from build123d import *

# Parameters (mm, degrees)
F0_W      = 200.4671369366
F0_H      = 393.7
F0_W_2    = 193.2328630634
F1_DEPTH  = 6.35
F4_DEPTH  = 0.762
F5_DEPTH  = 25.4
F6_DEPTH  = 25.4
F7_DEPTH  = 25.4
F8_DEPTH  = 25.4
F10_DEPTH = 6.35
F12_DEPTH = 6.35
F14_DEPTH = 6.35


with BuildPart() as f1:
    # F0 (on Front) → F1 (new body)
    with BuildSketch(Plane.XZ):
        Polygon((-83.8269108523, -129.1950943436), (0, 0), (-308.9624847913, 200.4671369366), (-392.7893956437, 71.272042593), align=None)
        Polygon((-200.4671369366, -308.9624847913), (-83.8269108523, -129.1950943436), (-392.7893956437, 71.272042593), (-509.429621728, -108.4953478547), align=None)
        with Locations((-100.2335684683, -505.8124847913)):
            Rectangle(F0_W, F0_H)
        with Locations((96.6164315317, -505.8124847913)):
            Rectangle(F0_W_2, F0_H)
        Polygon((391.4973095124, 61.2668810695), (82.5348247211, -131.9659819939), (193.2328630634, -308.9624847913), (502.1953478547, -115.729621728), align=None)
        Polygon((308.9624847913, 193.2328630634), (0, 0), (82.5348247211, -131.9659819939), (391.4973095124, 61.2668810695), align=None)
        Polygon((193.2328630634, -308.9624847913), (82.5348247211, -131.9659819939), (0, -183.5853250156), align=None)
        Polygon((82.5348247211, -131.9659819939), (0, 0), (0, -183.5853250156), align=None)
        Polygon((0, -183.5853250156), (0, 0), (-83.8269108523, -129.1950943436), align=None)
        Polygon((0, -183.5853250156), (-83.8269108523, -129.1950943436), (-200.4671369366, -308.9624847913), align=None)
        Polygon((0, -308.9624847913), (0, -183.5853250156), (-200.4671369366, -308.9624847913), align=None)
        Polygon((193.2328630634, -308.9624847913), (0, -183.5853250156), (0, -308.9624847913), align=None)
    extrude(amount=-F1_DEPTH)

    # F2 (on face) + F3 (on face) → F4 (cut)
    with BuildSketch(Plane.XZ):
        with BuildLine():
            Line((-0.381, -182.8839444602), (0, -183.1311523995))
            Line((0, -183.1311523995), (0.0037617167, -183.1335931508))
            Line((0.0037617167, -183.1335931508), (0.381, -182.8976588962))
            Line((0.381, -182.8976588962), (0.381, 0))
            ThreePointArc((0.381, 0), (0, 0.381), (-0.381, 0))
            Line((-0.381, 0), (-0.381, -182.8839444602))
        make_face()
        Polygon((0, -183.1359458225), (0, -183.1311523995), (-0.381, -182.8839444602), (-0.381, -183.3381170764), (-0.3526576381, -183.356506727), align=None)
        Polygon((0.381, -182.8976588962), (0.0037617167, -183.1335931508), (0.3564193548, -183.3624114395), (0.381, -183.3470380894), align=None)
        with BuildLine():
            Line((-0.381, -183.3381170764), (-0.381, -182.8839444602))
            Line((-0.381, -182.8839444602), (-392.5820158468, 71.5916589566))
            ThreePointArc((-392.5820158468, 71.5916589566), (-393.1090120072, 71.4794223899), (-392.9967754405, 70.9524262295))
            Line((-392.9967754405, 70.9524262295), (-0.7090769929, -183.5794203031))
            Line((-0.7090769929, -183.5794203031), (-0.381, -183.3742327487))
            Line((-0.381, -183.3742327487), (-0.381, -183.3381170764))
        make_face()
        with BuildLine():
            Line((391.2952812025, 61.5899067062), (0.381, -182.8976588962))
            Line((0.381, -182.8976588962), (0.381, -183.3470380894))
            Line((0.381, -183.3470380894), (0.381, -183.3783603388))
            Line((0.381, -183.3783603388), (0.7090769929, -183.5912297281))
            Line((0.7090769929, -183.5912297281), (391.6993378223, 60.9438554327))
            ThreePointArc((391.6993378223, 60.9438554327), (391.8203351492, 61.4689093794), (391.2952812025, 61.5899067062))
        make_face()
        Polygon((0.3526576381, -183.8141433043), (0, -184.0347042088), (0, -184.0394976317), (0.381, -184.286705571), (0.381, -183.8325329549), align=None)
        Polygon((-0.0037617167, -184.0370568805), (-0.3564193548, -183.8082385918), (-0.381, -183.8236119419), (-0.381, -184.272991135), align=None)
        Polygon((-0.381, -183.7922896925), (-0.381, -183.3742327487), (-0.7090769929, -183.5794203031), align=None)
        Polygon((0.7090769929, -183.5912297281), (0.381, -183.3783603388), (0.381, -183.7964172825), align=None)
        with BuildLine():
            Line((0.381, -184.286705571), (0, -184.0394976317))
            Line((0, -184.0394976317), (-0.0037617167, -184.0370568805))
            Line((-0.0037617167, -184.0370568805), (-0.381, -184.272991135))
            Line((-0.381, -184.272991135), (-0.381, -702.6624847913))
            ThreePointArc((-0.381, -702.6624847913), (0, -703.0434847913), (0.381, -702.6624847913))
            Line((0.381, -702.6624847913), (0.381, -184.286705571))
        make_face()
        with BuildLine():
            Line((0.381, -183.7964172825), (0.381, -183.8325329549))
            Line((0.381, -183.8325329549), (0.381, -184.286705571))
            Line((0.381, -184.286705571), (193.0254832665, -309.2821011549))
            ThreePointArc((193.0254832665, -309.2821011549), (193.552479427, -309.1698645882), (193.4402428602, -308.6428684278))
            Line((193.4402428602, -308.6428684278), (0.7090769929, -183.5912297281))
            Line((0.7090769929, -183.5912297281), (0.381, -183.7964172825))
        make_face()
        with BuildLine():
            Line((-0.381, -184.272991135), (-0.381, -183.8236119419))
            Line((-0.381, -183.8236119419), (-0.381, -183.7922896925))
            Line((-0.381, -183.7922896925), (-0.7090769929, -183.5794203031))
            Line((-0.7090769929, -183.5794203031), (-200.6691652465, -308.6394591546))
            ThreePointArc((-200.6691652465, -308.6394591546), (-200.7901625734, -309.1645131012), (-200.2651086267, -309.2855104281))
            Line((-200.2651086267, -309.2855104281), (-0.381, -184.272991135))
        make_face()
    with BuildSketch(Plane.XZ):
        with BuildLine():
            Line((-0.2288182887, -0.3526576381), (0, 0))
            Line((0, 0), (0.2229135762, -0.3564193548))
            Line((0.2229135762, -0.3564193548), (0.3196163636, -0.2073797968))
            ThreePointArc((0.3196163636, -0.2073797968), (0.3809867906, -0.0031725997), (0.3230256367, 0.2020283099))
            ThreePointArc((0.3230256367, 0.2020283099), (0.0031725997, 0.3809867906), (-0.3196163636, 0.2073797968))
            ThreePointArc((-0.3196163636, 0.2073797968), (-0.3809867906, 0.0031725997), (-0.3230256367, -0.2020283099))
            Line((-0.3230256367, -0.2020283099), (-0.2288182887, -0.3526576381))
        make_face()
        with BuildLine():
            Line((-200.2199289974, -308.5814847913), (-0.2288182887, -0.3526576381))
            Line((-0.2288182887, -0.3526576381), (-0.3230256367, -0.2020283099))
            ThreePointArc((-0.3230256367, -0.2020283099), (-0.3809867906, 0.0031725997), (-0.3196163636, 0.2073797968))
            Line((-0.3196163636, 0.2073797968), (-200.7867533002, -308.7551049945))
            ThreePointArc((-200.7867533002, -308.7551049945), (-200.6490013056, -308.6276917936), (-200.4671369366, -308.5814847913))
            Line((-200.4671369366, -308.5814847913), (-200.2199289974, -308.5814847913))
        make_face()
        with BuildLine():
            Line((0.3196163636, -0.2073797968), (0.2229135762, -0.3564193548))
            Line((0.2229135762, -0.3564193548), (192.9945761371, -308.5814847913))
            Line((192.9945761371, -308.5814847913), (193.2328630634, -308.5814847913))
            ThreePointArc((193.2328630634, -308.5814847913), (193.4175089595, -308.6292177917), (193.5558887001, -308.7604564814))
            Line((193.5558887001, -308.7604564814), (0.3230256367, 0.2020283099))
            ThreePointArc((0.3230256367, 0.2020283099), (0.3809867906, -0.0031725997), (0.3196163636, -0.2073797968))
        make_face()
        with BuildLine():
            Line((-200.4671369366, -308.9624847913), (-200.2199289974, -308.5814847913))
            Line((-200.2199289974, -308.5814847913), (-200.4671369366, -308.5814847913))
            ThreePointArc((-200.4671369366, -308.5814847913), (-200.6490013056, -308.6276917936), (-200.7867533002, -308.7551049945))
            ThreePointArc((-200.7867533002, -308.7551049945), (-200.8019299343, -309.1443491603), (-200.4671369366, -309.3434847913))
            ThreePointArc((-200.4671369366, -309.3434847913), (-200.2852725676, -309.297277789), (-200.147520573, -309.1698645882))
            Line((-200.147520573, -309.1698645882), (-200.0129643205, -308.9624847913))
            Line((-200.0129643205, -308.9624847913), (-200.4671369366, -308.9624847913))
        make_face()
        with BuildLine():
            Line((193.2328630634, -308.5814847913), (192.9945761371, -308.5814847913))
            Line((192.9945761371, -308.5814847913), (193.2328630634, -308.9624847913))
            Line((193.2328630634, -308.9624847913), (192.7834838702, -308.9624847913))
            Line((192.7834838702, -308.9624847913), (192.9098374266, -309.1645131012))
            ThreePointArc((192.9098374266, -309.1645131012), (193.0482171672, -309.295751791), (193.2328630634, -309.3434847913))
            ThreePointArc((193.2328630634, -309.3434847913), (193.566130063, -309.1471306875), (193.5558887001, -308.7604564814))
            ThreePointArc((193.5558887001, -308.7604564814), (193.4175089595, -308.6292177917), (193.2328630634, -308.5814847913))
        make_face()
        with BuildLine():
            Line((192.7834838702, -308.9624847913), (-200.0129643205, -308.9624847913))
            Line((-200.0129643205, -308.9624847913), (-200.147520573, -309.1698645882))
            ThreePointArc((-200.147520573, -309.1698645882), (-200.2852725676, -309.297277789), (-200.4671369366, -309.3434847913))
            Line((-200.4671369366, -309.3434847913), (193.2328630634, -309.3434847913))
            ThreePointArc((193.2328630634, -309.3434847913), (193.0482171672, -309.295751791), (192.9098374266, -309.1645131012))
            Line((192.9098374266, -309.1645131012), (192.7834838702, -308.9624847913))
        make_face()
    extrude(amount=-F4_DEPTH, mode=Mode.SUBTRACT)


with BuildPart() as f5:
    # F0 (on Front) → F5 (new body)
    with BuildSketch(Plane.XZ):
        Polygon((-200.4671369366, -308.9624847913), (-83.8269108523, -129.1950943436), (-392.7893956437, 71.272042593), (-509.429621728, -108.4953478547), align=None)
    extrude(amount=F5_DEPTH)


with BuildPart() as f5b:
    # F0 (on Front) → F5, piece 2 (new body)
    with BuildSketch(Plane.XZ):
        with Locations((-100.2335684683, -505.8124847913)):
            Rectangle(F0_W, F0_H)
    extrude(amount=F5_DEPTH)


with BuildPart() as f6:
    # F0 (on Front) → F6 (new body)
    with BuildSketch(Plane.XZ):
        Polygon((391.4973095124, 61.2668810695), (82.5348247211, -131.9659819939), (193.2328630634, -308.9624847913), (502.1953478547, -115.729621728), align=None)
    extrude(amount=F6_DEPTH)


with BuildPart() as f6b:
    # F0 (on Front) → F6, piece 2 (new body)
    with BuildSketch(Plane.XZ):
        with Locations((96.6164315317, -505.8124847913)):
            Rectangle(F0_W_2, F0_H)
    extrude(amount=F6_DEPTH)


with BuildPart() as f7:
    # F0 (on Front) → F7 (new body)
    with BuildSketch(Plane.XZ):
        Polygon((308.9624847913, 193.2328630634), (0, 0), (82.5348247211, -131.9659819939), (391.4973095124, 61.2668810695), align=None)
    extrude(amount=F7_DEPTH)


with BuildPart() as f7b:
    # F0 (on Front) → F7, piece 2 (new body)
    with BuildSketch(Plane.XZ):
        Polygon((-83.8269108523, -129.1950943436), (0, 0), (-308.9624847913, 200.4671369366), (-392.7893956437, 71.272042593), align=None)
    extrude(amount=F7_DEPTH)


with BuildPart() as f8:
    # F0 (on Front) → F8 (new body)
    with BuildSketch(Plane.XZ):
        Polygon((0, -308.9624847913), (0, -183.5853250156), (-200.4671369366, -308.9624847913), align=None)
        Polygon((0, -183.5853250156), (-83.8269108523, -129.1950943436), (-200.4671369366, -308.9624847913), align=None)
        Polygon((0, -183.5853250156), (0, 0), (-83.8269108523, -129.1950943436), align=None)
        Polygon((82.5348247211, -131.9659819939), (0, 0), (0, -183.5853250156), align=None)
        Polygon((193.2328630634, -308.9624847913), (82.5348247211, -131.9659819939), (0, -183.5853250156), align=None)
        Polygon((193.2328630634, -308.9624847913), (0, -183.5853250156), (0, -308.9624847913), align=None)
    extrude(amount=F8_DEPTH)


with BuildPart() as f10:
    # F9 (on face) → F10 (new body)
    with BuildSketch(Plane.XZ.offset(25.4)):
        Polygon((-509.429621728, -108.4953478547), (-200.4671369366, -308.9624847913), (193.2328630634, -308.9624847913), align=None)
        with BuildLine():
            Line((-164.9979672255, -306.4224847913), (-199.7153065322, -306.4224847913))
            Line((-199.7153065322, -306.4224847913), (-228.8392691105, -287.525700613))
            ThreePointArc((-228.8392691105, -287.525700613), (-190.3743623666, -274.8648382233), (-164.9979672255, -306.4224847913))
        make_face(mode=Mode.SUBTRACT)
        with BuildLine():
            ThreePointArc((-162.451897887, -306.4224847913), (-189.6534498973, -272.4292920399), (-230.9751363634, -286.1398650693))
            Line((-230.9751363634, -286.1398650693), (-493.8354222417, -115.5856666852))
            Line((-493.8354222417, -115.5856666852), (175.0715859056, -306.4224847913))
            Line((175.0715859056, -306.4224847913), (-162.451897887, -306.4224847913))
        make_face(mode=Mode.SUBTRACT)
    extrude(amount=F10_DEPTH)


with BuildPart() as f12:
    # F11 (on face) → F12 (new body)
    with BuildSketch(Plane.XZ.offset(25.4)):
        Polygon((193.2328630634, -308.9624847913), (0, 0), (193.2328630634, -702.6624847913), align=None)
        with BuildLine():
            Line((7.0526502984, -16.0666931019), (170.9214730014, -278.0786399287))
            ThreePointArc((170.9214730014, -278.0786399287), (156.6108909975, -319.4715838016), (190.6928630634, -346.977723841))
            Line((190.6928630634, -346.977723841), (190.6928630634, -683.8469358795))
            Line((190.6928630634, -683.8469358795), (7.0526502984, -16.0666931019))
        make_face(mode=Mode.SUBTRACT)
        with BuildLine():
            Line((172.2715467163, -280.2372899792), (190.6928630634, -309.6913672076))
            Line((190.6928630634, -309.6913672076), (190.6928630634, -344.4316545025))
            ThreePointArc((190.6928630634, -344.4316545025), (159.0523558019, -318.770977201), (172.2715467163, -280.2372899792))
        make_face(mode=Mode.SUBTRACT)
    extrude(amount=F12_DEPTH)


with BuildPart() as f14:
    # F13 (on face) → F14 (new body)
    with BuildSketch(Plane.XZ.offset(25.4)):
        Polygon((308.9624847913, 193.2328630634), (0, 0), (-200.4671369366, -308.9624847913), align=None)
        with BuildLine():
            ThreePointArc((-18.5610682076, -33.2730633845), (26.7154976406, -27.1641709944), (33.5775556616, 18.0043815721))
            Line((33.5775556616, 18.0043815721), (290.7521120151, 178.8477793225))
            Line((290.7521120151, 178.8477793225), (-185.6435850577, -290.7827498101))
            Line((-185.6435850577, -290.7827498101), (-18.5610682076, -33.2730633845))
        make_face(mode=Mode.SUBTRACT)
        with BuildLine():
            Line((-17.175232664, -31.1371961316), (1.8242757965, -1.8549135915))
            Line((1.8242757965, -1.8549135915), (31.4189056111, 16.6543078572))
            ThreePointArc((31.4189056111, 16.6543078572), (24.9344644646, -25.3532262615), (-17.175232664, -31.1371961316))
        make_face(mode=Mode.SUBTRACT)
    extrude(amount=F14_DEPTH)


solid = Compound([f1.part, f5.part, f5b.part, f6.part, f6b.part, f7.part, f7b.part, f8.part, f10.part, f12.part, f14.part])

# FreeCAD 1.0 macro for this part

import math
import FreeCAD as App
import Part
import Sketcher
from FreeCAD import Vector
Q = App.Units.Quantity


def add_polygon(sketch, points):
    """Adds a closed chain of lines whose ends are joined by coincident constraints."""
    first, n = sketch.GeometryCount, len(points)
    for a, b in zip(points, points[1:] + points[:1]):
        sketch.addGeometry(Part.LineSegment(App.Vector(*a, 0), App.Vector(*b, 0)), False)
    for i in range(n):
        sketch.addConstraint(Sketcher.Constraint("Coincident", first + i, 2, first + (i + 1) % n, 1))

doc = App.newDocument("Part")
params = doc.addObject("Spreadsheet::Sheet", "Params")
for row, (alias, value) in enumerate([
    ("sketch1_width", "15.5 in"),
    ("sketch1_length", "14.5 in"),
    ("pad1_length", "0.25 in"),
    ("sketch2_radius", "0.015 in"),
    ("sketch2_radius2", "0.015 in"),
    ("sketch2_radius3", "0.015 in"),
    ("sketch2_radius4", "0.015 in"),
    ("sketch2_radius5", "0.015 in"),
    ("pocket1_length", "0.03 in"),
    ("sketch3_length", "14.5 in"),
    ("pad2_length", "1 in"),
    ("sketch4_height", "15.5 in"),
    ("pad3_length", "1 in"),
    ("pad4_length", "1 in"),
    ("sketch6_height", "15.5 in"),
    ("pad5_length", "1 in"),
    ("pad6_length", "1 in"),
    ("sketch8_length", "14.5 in"),
    ("pad7_length", "1 in"),
    ("sketch9_width", "15.5 in"),
    ("sketch9_length", "14.5 in"),
    ("pad8_length", "1 in"),
    ("sketch10_radius", "1.4 in"),
    ("sketch10_radius2", "1.5 in"),
    ("sketch10_width", "15.5 in"),
    ("sketch10_length", "14.5 in"),
    ("sketch10_height", "0.1 in"),
    ("pad9_length", "0.25 in"),
    ("sketch11_radius", "1.5 in"),
    ("sketch11_radius2", "1.4 in"),
    ("sketch11_height", "15.5 in"),
    ("sketch11_width", "0.1 in"),
    ("pad10_length", "0.25 in"),
    ("sketch12_radius", "1.4 in"),
    ("sketch12_radius2", "1.5 in"),
    ("sketch12_length", "14.5 in"),
    ("pad11_length", "0.25 in"),
], start=1):
    params.set(f"A{row}", alias)
    params.set(f"B{row}", "=" + value)
    params.setAlias(f"B{row}", alias)

body = doc.addObject("PartDesign::Body", "Body")

# Sketch on XZ plane
sketch1 = body.newObject("Sketcher::SketchObject", "Sketch")
sketch1.AttachmentSupport = (doc.getObject("XZ_Plane"), [""])
sketch1.MapMode = "FlatFace"
add_polygon(sketch1, [(193, -703), (193, -309), (502, -116), (309, 193), (0, 0), (-309, 200), (-509, -108), (-200, -309), (-200, -703)])  # lines 0-8
sketch1.addConstraint(Sketcher.Constraint("Vertical", 0))
sketch1.addConstraint(Sketcher.Constraint("Vertical", 7))
sketch1.addConstraint(Sketcher.Constraint("Horizontal", 8))
sketch1.addConstraint(Sketcher.Constraint("Coincident", 3, 2, -1, 1))
sketch1.addConstraint(Sketcher.Constraint("Perpendicular", 1, 2))
sketch1.addConstraint(Sketcher.Constraint("Perpendicular", 2, 3))
sketch1.addConstraint(Sketcher.Constraint("Perpendicular", 4, 5))
sketch1.addConstraint(Sketcher.Constraint("Perpendicular", 5, 6))
sketch1.addConstraint(Sketcher.Constraint("Horizontal", 0, 2, 6, 2))
sketch1.addConstraint(Sketcher.Constraint("Equal", 8, 0))
sketch1.addConstraint(Sketcher.Constraint("Equal", 1, 2))
sketch1.addConstraint(Sketcher.Constraint("Equal", 2, 3))
sketch1.addConstraint(Sketcher.Constraint("Equal", 4, 5))
sketch1.addConstraint(Sketcher.Constraint("Equal", 5, 6))
sketch1.addConstraint(Sketcher.Constraint("DistanceX", 8, 1, 8, 2, Q("15.5 in")))
sketch1.addConstraint(Sketcher.Constraint("Distance", 4, Q("14.5 in")))
sketch1.addConstraint(Sketcher.Constraint("DistanceY", 1, 2, -1, 1, 115.729622))
sketch1.setExpression("Constraints[23]", "Params.sketch1_width")
sketch1.setExpression("Constraints[24]", "Params.sketch1_length")
pad1 = body.newObject("PartDesign::Pad", "Pad")
pad1.Profile = sketch1
pad1.setExpression("Length", "Params.pad1_length")
pad1.Reversed = True

# Sketch on XZ plane
sketch2 = body.newObject("Sketcher::SketchObject", "Sketch001")
sketch2.AttachmentSupport = (doc.getObject("XZ_Plane"), [""])
sketch2.MapMode = "FlatFace"
sketch2.addGeometry(Part.ArcOfCircle(Part.Circle(Vector(-200.467137, -308.962485, 0), Vector(0, 0, 1), 0.381), math.radians(147.022891), math.radians(270)), False)  # 0
sketch2.addGeometry(Part.LineSegment(Vector(-200.467137, -309.343485, 0), Vector(-0.381, -309.343485, 0)), False)  # 1
sketch2.addGeometry(Part.LineSegment(Vector(-0.381, -309.343485, 0), Vector(-0.381, -702.662485, 0)), False)  # 2
sketch2.addGeometry(Part.ArcOfCircle(Part.Circle(Vector(0, -702.662485, 0), Vector(0, 0, 1), 0.381), math.radians(180), math.radians(360)), False)  # 3
sketch2.addGeometry(Part.LineSegment(Vector(0.381, -702.662485, 0), Vector(0.381, -309.343485, 0)), False)  # 4
sketch2.addGeometry(Part.LineSegment(Vector(0.381, -309.343485, 0), Vector(193.232863, -309.343485, 0)), False)  # 5
sketch2.addGeometry(Part.ArcOfCircle(Part.Circle(Vector(193.232863, -308.962485, 0), Vector(0, 0, 1), 0.381), math.radians(-90), math.radians(32.022891)), False)  # 6
sketch2.addGeometry(Part.LineSegment(Vector(193.555889, -308.760456, 0), Vector(83.059879, -132.086979, 0)), False)  # 7
sketch2.addGeometry(Part.LineSegment(Vector(83.059879, -132.086979, 0), Vector(391.699338, 60.943855, 0)), False)  # 8
sketch2.addGeometry(Part.ArcOfCircle(Part.Circle(Vector(391.49731, 61.266881, 0), Vector(0, 0, 1), 0.381), math.radians(-57.977109), math.radians(122.02289)), False)  # 9
sketch2.addGeometry(Part.LineSegment(Vector(391.295281, 61.589907, 0), Vector(82.655822, -131.440928, 0)), False)  # 10
sketch2.addGeometry(Part.LineSegment(Vector(82.655822, -131.440928, 0), Vector(0.323026, 0.202028, 0)), False)  # 11
sketch2.addGeometry(Part.ArcOfCircle(Part.Circle(Vector(0, 0, 0), Vector(0, 0, 1), 0.381), math.radians(32.022891), math.radians(147.022891)), False)  # 12
sketch2.addGeometry(Part.LineSegment(Vector(-0.319616, 0.20738, 0), Vector(-83.939147, -128.668098, 0)), False)  # 13
sketch2.addGeometry(Part.LineSegment(Vector(-83.939147, -128.668098, 0), Vector(-392.582016, 71.591659, 0)), False)  # 14
sketch2.addGeometry(Part.ArcOfCircle(Part.Circle(Vector(-392.789396, 71.272043, 0), Vector(0, 0, 1), 0.381), math.radians(57.022891), math.radians(237.022891)), False)  # 15
sketch2.addGeometry(Part.LineSegment(Vector(-392.996775, 70.952426, 0), Vector(-84.353907, -129.307331, 0)), False)  # 16
sketch2.addGeometry(Part.LineSegment(Vector(-84.353907, -129.307331, 0), Vector(-200.786753, -308.755105, 0)), False)  # 17
add_polygon(sketch2, [(-199.748619, -308.962485), (-0.381, -184.272991), (-0.381, -308.962485)])  # lines 18-20
add_polygon(sketch2, [(-0.709077, -183.57942), (-199.976435, -308.206208), (-84.034291, -129.514711)])  # lines 21-23
add_polygon(sketch2, [(-0.381, -182.883944), (-83.619531, -128.875478), (-0.381, -0.587202)])  # lines 24-26
add_polygon(sketch2, [(0.381, -182.897659), (0.381, -0.609186), (82.332796, -131.642956)])  # lines 27-29
add_polygon(sketch2, [(0.709077, -183.59123), (82.736853, -132.289008), (192.754823, -308.198141)])  # lines 30-32
add_polygon(sketch2, [(0.381, -184.286706), (192.532886, -308.962485), (0.381, -308.962485)])  # lines 33-35
add_polygon(sketch2, [(0, -183.131152), (0.003762, -183.133593), (0.356419, -183.362411), (0.381, -183.347038), (0.381, -183.832533), (0.352658, -183.814143), (0, -184.034704), (0, -184.039498), (-0.003762, -184.037057), (-0.356419, -183.808239), (-0.381, -183.823612), (-0.381, -183.338117), (-0.352658, -183.356507), (0, -183.135946)])  # lines 36-49
sketch2.addConstraint(Sketcher.Constraint("Coincident", 0, 2, 1, 1))
sketch2.addConstraint(Sketcher.Constraint("Coincident", 1, 2, 2, 1))
sketch2.addConstraint(Sketcher.Constraint("Coincident", 2, 2, 3, 1))
sketch2.addConstraint(Sketcher.Constraint("Coincident", 3, 2, 4, 1))
sketch2.addConstraint(Sketcher.Constraint("Coincident", 4, 2, 5, 1))
sketch2.addConstraint(Sketcher.Constraint("Coincident", 5, 2, 6, 1))
sketch2.addConstraint(Sketcher.Constraint("Coincident", 6, 2, 7, 1))
sketch2.addConstraint(Sketcher.Constraint("Coincident", 7, 2, 8, 1))
sketch2.addConstraint(Sketcher.Constraint("Coincident", 8, 2, 9, 1))
sketch2.addConstraint(Sketcher.Constraint("Coincident", 9, 2, 10, 1))
sketch2.addConstraint(Sketcher.Constraint("Coincident", 10, 2, 11, 1))
sketch2.addConstraint(Sketcher.Constraint("Coincident", 11, 2, 12, 1))
sketch2.addConstraint(Sketcher.Constraint("Coincident", 12, 2, 13, 1))
sketch2.addConstraint(Sketcher.Constraint("Coincident", 13, 2, 14, 1))
sketch2.addConstraint(Sketcher.Constraint("Coincident", 14, 2, 15, 1))
sketch2.addConstraint(Sketcher.Constraint("Coincident", 15, 2, 16, 1))
sketch2.addConstraint(Sketcher.Constraint("Coincident", 16, 2, 17, 1))
sketch2.addConstraint(Sketcher.Constraint("Coincident", 17, 2, 0, 1))
sketch2.addConstraint(Sketcher.Constraint("Horizontal", 1))
sketch2.addConstraint(Sketcher.Constraint("Vertical", 2))
sketch2.addConstraint(Sketcher.Constraint("Vertical", 4))
sketch2.addConstraint(Sketcher.Constraint("Horizontal", 5))
sketch2.addConstraint(Sketcher.Constraint("Vertical", 19))
sketch2.addConstraint(Sketcher.Constraint("Horizontal", 20))
sketch2.addConstraint(Sketcher.Constraint("Vertical", 26))
sketch2.addConstraint(Sketcher.Constraint("Vertical", 27))
sketch2.addConstraint(Sketcher.Constraint("Horizontal", 34))
sketch2.addConstraint(Sketcher.Constraint("Vertical", 35))
sketch2.addConstraint(Sketcher.Constraint("Vertical", 39))
sketch2.addConstraint(Sketcher.Constraint("Vertical", 42))
sketch2.addConstraint(Sketcher.Constraint("Vertical", 46))
sketch2.addConstraint(Sketcher.Constraint("Vertical", 49))
sketch2.addConstraint(Sketcher.Constraint("Coincident", 12, 3, -1, 1))
sketch2.addConstraint(Sketcher.Constraint("PointOnObject", 3, 3, -2))
sketch2.addConstraint(Sketcher.Constraint("PointOnObject", 41, 2, -2))
sketch2.addConstraint(Sketcher.Constraint("PointOnObject", 48, 2, -2))
sketch2.addConstraint(Sketcher.Constraint("Radius", 0, Q("0.015 in")))
sketch2.addConstraint(Sketcher.Constraint("Radius", 3, Q("0.015 in")))
sketch2.addConstraint(Sketcher.Constraint("Radius", 6, Q("0.015 in")))
sketch2.addConstraint(Sketcher.Constraint("Radius", 9, Q("0.015 in")))
sketch2.addConstraint(Sketcher.Constraint("Radius", 12, Q("0.015 in")))
sketch2.addConstraint(Sketcher.Constraint("Radius", 15, Q("0.015 in")))
sketch2.addConstraint(Sketcher.Constraint("DistanceY", 3, 3, 0, 3, Q("15.5 in")))
sketch2.addConstraint(Sketcher.Constraint("DistanceX", 0, 3, 6, 3, Q("15.5 in")))
sketch2.addConstraint(Sketcher.Constraint("DistanceY", 3, 3, 6, 3, Q("15.5 in")))
sketch2.addConstraint(Sketcher.Constraint("DistanceX", 0, 2, 6, 3, Q("15.5 in")))
sketch2.addConstraint(Sketcher.Constraint("DistanceY", 2, 2, 6, 3, Q("15.5 in")))
sketch2.addConstraint(Sketcher.Constraint("DistanceY", 3, 2, 6, 3, Q("15.5 in")))
sketch2.addConstraint(Sketcher.Constraint("DistanceX", 0, 2, 5, 2, Q("15.5 in")))
sketch2.addConstraint(Sketcher.Constraint("DistanceX", 19, 2, 4, 2, Q("0.03 in")))
sketch2.addConstraint(Sketcher.Constraint("DistanceX", 25, 2, 27, 2, Q("0.03 in")))
sketch2.addConstraint(Sketcher.Constraint("DistanceX", 18, 2, 29, 2, Q("0.03 in")))
sketch2.addConstraint(Sketcher.Constraint("DistanceX", 19, 2, 34, 2, Q("0.03 in")))
sketch2.addConstraint(Sketcher.Constraint("DistanceX", 26, 2, 38, 2, Q("0.03 in")))
sketch2.addConstraint(Sketcher.Constraint("Distance", 14, Q("14.485 in")))
sketch2.addConstraint(Sketcher.Constraint("Distance", 16, Q("14.485 in")))
sketch2.addConstraint(Sketcher.Constraint("DistanceX", 45, 2, -1, 1, Q("0.015 in")))
sketch2.addConstraint(Sketcher.Constraint("DistanceY", 10, 2, 16, 2, Q("0.0839999 in")))
sketch2.addConstraint(Sketcher.Constraint("DistanceY", 1, 2, 19, 2, Q("0.015 in")))
sketch2.addConstraint(Sketcher.Constraint("DistanceY", 5, 2, 33, 2, Q("0.015 in")))
sketch2.addConstraint(Sketcher.Constraint("DistanceY", 39, 2, 32, 2, Q("0.0095001 in")))
sketch2.addConstraint(Sketcher.Constraint("DistanceY", 23, 2, 46, 2, Q("0.0095001 in")))
sketch2.addConstraint(Sketcher.Constraint("DistanceX", 20, 2, 20, 1, 199.367619))
sketch2.addConstraint(Sketcher.Constraint("DistanceY", 35, 1, 35, 2, 124.675779))
sketch2.addConstraint(Sketcher.Constraint("DistanceY", 13, 2, -1, 1, 128.668098))
sketch2.addConstraint(Sketcher.Constraint("DistanceX", 14, 2, 12, 2, 392.262399))
sketch2.addConstraint(Sketcher.Constraint("DistanceX", 23, 2, 10, 2, 83.364899))
sketch2.addConstraint(Sketcher.Constraint("DistanceY", 35, 2, 41, 2, 0.252001))
sketch2.addConstraint(Sketcher.Constraint("Distance", 32, 228.928921))
sketch2.addConstraint(Sketcher.Constraint("Distance", 41, 0.41595))
sketch2.addConstraint(Sketcher.Constraint("Distance", 48, 0.41595))
sketch2.addConstraint(Sketcher.Constraint("DistanceX", 1, 1, 1, 2, 200.086137))
sketch2.addConstraint(Sketcher.Constraint("DistanceX", 34, 2, 34, 1, 192.151886))
sketch2.addConstraint(Sketcher.Constraint("DistanceY", 19, 2, 19, 1, 124.689494))
sketch2.addConstraint(Sketcher.Constraint("DistanceY", 26, 2, 26, 1, 182.296742))
sketch2.addConstraint(Sketcher.Constraint("DistanceY", 27, 1, 27, 2, 182.288473))
sketch2.addConstraint(Sketcher.Constraint("DistanceY", 39, 2, 39, 1, 0.485495))
sketch2.addConstraint(Sketcher.Constraint("DistanceY", 42, 2, 42, 1, 0.004793))
sketch2.addConstraint(Sketcher.Constraint("DistanceY", 46, 1, 46, 2, 0.485495))
sketch2.addConstraint(Sketcher.Constraint("DistanceY", 49, 1, 49, 2, 0.004793))
sketch2.addConstraint(Sketcher.Constraint("DistanceX", -1, 1, 9, 3, 391.49731))
sketch2.addConstraint(Sketcher.Constraint("DistanceY", -1, 1, 9, 3, 61.266881))
sketch2.addConstraint(Sketcher.Constraint("DistanceX", -1, 1, 6, 2, 193.555889))
sketch2.addConstraint(Sketcher.Constraint("DistanceX", -1, 1, 7, 2, 83.059879))
sketch2.addConstraint(Sketcher.Constraint("DistanceY", 7, 2, -1, 1, 132.086979))
sketch2.addConstraint(Sketcher.Constraint("DistanceX", -1, 1, 9, 2, 391.295281))
sketch2.addConstraint(Sketcher.Constraint("DistanceY", 10, 2, -1, 1, 131.440928))
sketch2.addConstraint(Sketcher.Constraint("DistanceY", -1, 1, 11, 2, 0.202028))
sketch2.addConstraint(Sketcher.Constraint("DistanceY", -1, 1, 12, 2, 0.20738))
sketch2.addConstraint(Sketcher.Constraint("DistanceY", -1, 1, 14, 2, 71.591659))
sketch2.addConstraint(Sketcher.Constraint("DistanceY", 18, 2, -1, 1, 184.272991))
sketch2.addConstraint(Sketcher.Constraint("DistanceY", 21, 2, -1, 1, 308.206208))
sketch2.addConstraint(Sketcher.Constraint("DistanceX", 22, 2, -1, 1, 84.034291))
sketch2.addConstraint(Sketcher.Constraint("DistanceY", 22, 2, -1, 1, 129.514711))
sketch2.addConstraint(Sketcher.Constraint("DistanceY", 23, 2, -1, 1, 183.57942))
sketch2.addConstraint(Sketcher.Constraint("DistanceX", 24, 2, -1, 1, 83.619531))
sketch2.addConstraint(Sketcher.Constraint("DistanceY", 29, 2, -1, 1, 182.897659))
sketch2.addConstraint(Sketcher.Constraint("DistanceY", 31, 2, -1, 1, 308.198141))
sketch2.addConstraint(Sketcher.Constraint("DistanceY", 32, 2, -1, 1, 183.59123))
sketch2.addConstraint(Sketcher.Constraint("DistanceX", -1, 1, 36, 2, 0.003762))
sketch2.addConstraint(Sketcher.Constraint("DistanceX", -1, 1, 37, 2, 0.356419))
sketch2.addConstraint(Sketcher.Constraint("DistanceY", 37, 2, -1, 1, 183.362411))
sketch2.addConstraint(Sketcher.Constraint("DistanceX", 43, 2, -1, 1, 0.003762))
sketch2.addConstraint(Sketcher.Constraint("DistanceX", 44, 2, -1, 1, 0.356419))
sketch2.addConstraint(Sketcher.Constraint("DistanceY", 44, 2, -1, 1, 183.808239))
sketch2.addConstraint(Sketcher.Constraint("DistanceX", 15, 3, 0, 3, 192.322259))
sketch2.addConstraint(Sketcher.Constraint("DistanceX", 9, 3, 8, 2, 0.202028))
sketch2.addConstraint(Sketcher.Constraint("DistanceX", 12, 2, 10, 2, 82.975438))
sketch2.addConstraint(Sketcher.Constraint("DistanceX", 15, 2, 15, 3, 0.20738))
sketch2.addConstraint(Sketcher.Constraint("DistanceY", 0, 3, 17, 2, 0.20738))
sketch2.addConstraint(Sketcher.Constraint("DistanceX", 17, 2, 21, 2, 0.810319))
sketch2.addConstraint(Sketcher.Constraint("DistanceY", 24, 2, 13, 2, 0.20738))
sketch2.addConstraint(Sketcher.Constraint("DistanceY", 25, 2, 12, 2, 0.794582))
sketch2.addConstraint(Sketcher.Constraint("DistanceY", 28, 2, 10, 2, 0.202028))
sketch2.addConstraint(Sketcher.Constraint("DistanceY", 30, 2, 7, 2, 0.202028))
sketch2.addConstraint(Sketcher.Constraint("DistanceX", 10, 2, 30, 2, 0.081031))
sketch2.addConstraint(Sketcher.Constraint("DistanceX", 31, 2, 6, 3, 0.47804))
sketch2.addConstraint(Sketcher.Constraint("DistanceY", 36, 2, 26, 2, 0.249649))
sketch2.addConstraint(Sketcher.Constraint("DistanceY", 39, 2, 40, 2, 0.01839))
sketch2.addConstraint(Sketcher.Constraint("DistanceY", 42, 2, 43, 2, 0.002441))
sketch2.addConstraint(Sketcher.Constraint("DistanceY", 47, 2, 46, 2, 0.01839))
sketch2.addConstraint(Sketcher.Constraint("DistanceX", 47, 2, 36, 2, 0.356419))
sketch2.addConstraint(Sketcher.Constraint("Distance", 28, 154.550788))
sketch2.setExpression("Constraints[68]", "Params.sketch2_radius")
sketch2.setExpression("Constraints[69]", "Params.sketch2_radius2")
sketch2.setExpression("Constraints[70]", "Params.sketch2_radius3")
sketch2.setExpression("Constraints[71]", "Params.sketch2_radius4")
sketch2.setExpression("Constraints[72]", "Params.sketch2_radius5")
pocket1 = body.newObject("PartDesign::Pocket", "Pocket")
pocket1.Profile = sketch2
pocket1.setExpression("Length", "Params.pocket1_length")
body2 = doc.addObject("PartDesign::Body", "Body001")

# Sketch on XZ plane
sketch3 = body2.newObject("Sketcher::SketchObject", "Sketch002")
sketch3.AttachmentSupport = (doc.getObject("XZ_Plane001"), [""])
sketch3.MapMode = "FlatFace"
add_polygon(sketch3, [(-200, -309), (-84, -129), (-393, 71), (-509, -108)])  # lines 0-3
sketch3.addConstraint(Sketcher.Constraint("Perpendicular", 0, 1))
sketch3.addConstraint(Sketcher.Constraint("Perpendicular", 1, 2))
sketch3.addConstraint(Sketcher.Constraint("Perpendicular", 2, 3))
sketch3.addConstraint(Sketcher.Constraint("Distance", 1, Q("14.5 in")))
sketch3.addConstraint(Sketcher.Constraint("DistanceX", 0, 2, -1, 1, 83.826911))
sketch3.addConstraint(Sketcher.Constraint("DistanceX", 2, 2, -1, 1, 509.429622))
sketch3.addConstraint(Sketcher.Constraint("DistanceY", 2, 2, 1, 2, 179.76739))
sketch3.addConstraint(Sketcher.Constraint("DistanceY", 0, 2, -1, 1, 129.195094))
sketch3.setExpression("Constraints[7]", "Params.sketch3_length")
pad2 = body2.newObject("PartDesign::Pad", "Pad001")
pad2.Profile = sketch3
pad2.setExpression("Length", "Params.pad2_length")
body3 = doc.addObject("PartDesign::Body", "Body002")

# Sketch on XZ plane
sketch4 = body3.newObject("Sketcher::SketchObject", "Sketch003")
sketch4.AttachmentSupport = (doc.getObject("XZ_Plane002"), [""])
sketch4.MapMode = "FlatFace"
add_polygon(sketch4, [(-200, -309), (-200, -703), (0, -703), (0, -309)])  # lines 0-3
sketch4.addConstraint(Sketcher.Constraint("Vertical", 0))
sketch4.addConstraint(Sketcher.Constraint("Horizontal", 1))
sketch4.addConstraint(Sketcher.Constraint("Vertical", 2))
sketch4.addConstraint(Sketcher.Constraint("Horizontal", 3))
sketch4.addConstraint(Sketcher.Constraint("PointOnObject", 1, 2, -2))
sketch4.addConstraint(Sketcher.Constraint("DistanceY", 0, 2, 0, 1, Q("15.5 in")))
sketch4.addConstraint(Sketcher.Constraint("DistanceX", 1, 1, 1, 2, 200.467137))
sketch4.addConstraint(Sketcher.Constraint("DistanceY", 0, 2, -1, 1, 702.662485))
sketch4.setExpression("Constraints[9]", "Params.sketch4_height")
pad3 = body3.newObject("PartDesign::Pad", "Pad002")
pad3.Profile = sketch4
pad3.setExpression("Length", "Params.pad3_length")
body4 = doc.addObject("PartDesign::Body", "Body003")

# Sketch on XZ plane
sketch5 = body4.newObject("Sketcher::SketchObject", "Sketch004")
sketch5.AttachmentSupport = (doc.getObject("XZ_Plane003"), [""])
sketch5.MapMode = "FlatFace"
add_polygon(sketch5, [(391, 61), (83, -132), (193, -309), (502, -116)])  # lines 0-3
sketch5.addConstraint(Sketcher.Constraint("Perpendicular", 0, 1))
sketch5.addConstraint(Sketcher.Constraint("Perpendicular", 1, 2))
sketch5.addConstraint(Sketcher.Constraint("Perpendicular", 2, 3))
sketch5.addConstraint(Sketcher.Constraint("DistanceY", 0, 2, -1, 1, 131.965982))
sketch5.addConstraint(Sketcher.Constraint("DistanceY", 2, 2, -1, 1, 115.729622))
sketch5.addConstraint(Sketcher.Constraint("DistanceX", -1, 1, 3, 2, 391.49731))
sketch5.addConstraint(Sketcher.Constraint("DistanceY", -1, 1, 3, 2, 61.266881))
sketch5.addConstraint(Sketcher.Constraint("DistanceX", 0, 2, 1, 2, 110.698038))
pad4 = body4.newObject("PartDesign::Pad", "Pad003")
pad4.Profile = sketch5
pad4.setExpression("Length", "Params.pad4_length")
body5 = doc.addObject("PartDesign::Body", "Body004")

# Sketch on XZ plane
sketch6 = body5.newObject("Sketcher::SketchObject", "Sketch005")
sketch6.AttachmentSupport = (doc.getObject("XZ_Plane004"), [""])
sketch6.MapMode = "FlatFace"
add_polygon(sketch6, [(0, -309), (0, -703), (193, -703), (193, -309)])  # lines 0-3
sketch6.addConstraint(Sketcher.Constraint("Vertical", 0))
sketch6.addConstraint(Sketcher.Constraint("Horizontal", 1))
sketch6.addConstraint(Sketcher.Constraint("Vertical", 2))
sketch6.addConstraint(Sketcher.Constraint("Horizontal", 3))
sketch6.addConstraint(Sketcher.Constraint("PointOnObject", 0, 2, -2))
sketch6.addConstraint(Sketcher.Constraint("DistanceY", 0, 2, 0, 1, Q("15.5 in")))
sketch6.addConstraint(Sketcher.Constraint("DistanceX", 1, 1, 1, 2, 193.232863))
sketch6.addConstraint(Sketcher.Constraint("DistanceY", 0, 2, -1, 1, 702.662485))
sketch6.setExpression("Constraints[9]", "Params.sketch6_height")
pad5 = body5.newObject("PartDesign::Pad", "Pad004")
pad5.Profile = sketch6
pad5.setExpression("Length", "Params.pad5_length")
body6 = doc.addObject("PartDesign::Body", "Body005")

# Sketch on XZ plane
sketch7 = body6.newObject("Sketcher::SketchObject", "Sketch006")
sketch7.AttachmentSupport = (doc.getObject("XZ_Plane005"), [""])
sketch7.MapMode = "FlatFace"
add_polygon(sketch7, [(309, 193), (0, 0), (83, -132), (391, 61)])  # lines 0-3
sketch7.addConstraint(Sketcher.Constraint("Coincident", 0, 2, -1, 1))
sketch7.addConstraint(Sketcher.Constraint("Perpendicular", 0, 1))
sketch7.addConstraint(Sketcher.Constraint("Perpendicular", 1, 2))
sketch7.addConstraint(Sketcher.Constraint("Perpendicular", 2, 3))
sketch7.addConstraint(Sketcher.Constraint("DistanceY", 1, 2, -1, 1, 131.965982))
sketch7.addConstraint(Sketcher.Constraint("DistanceX", -1, 1, 2, 2, 391.49731))
sketch7.addConstraint(Sketcher.Constraint("DistanceY", -1, 1, 2, 2, 61.266881))
pad6 = body6.newObject("PartDesign::Pad", "Pad005")
pad6.Profile = sketch7
pad6.setExpression("Length", "Params.pad6_length")
body7 = doc.addObject("PartDesign::Body", "Body006")

# Sketch on XZ plane
sketch8 = body7.newObject("Sketcher::SketchObject", "Sketch007")
sketch8.AttachmentSupport = (doc.getObject("XZ_Plane006"), [""])
sketch8.MapMode = "FlatFace"
add_polygon(sketch8, [(-84, -129), (0, 0), (-309, 200), (-393, 71)])  # lines 0-3
sketch8.addConstraint(Sketcher.Constraint("Coincident", 0, 2, -1, 1))
sketch8.addConstraint(Sketcher.Constraint("Perpendicular", 0, 1))
sketch8.addConstraint(Sketcher.Constraint("Perpendicular", 1, 2))
sketch8.addConstraint(Sketcher.Constraint("Perpendicular", 2, 3))
sketch8.addConstraint(Sketcher.Constraint("Distance", 1, Q("14.5 in")))
sketch8.addConstraint(Sketcher.Constraint("DistanceX", 3, 2, -1, 1, 83.826911))
sketch8.addConstraint(Sketcher.Constraint("DistanceY", 3, 2, 1, 2, 329.662231))
sketch8.setExpression("Constraints[8]", "Params.sketch8_length")
pad7 = body7.newObject("PartDesign::Pad", "Pad006")
pad7.Profile = sketch8
pad7.setExpression("Length", "Params.pad7_length")
body8 = doc.addObject("PartDesign::Body", "Body007")

# Sketch on XZ plane
sketch9 = body8.newObject("Sketcher::SketchObject", "Sketch008")
sketch9.AttachmentSupport = (doc.getObject("XZ_Plane007"), [""])
sketch9.MapMode = "FlatFace"
add_polygon(sketch9, [(193, -309), (0, 0), (-200, -309)])  # lines 0-2
sketch9.addConstraint(Sketcher.Constraint("Horizontal", 2))
sketch9.addConstraint(Sketcher.Constraint("Coincident", 0, 2, -1, 1))
sketch9.addConstraint(Sketcher.Constraint("DistanceX", 2, 1, 2, 2, Q("15.5 in")))
sketch9.addConstraint(Sketcher.Constraint("Distance", 1, Q("14.5 in")))
sketch9.addConstraint(Sketcher.Constraint("Distance", 0, 364.412893))
sketch9.setExpression("Constraints[5]", "Params.sketch9_width")
sketch9.setExpression("Constraints[6]", "Params.sketch9_length")
pad8 = body8.newObject("PartDesign::Pad", "Pad007")
pad8.Profile = sketch9
pad8.setExpression("Length", "Params.pad8_length")
body9 = doc.addObject("PartDesign::Body", "Body008")

# Sketch on XZ plane
sketch10 = body9.newObject("Sketcher::SketchObject", "Sketch009")
sketch10.AttachmentSupport = (doc.getObject("XZ_Plane008"), [""])
sketch10.MapMode = "FlatFace"
sketch10.AttachmentOffset = App.Placement(Vector(0, 0, 1 * 25.4), App.Rotation())
add_polygon(sketch10, [(-509, -108), (-200, -309), (193, -309)])  # lines 0-2
sketch10.addGeometry(Part.ArcOfCircle(Part.Circle(Vector(-200, -309, 0), Vector(0, 0, 1), 36), math.radians(4), math.radians(143)), False)  # 3
sketch10.addGeometry(Part.LineSegment(Vector(-165, -306, 0), Vector(-200, -306, 0)), False)  # 4
sketch10.addGeometry(Part.LineSegment(Vector(-200, -306, 0), Vector(-229, -288, 0)), False)  # 5
sketch10.addGeometry(Part.LineSegment(Vector(175, -306, 0), Vector(-162, -306, 0)), False)  # 6
sketch10.addGeometry(Part.ArcOfCircle(Part.Circle(Vector(-200, -309, 0), Vector(0, 0, 1), 38), math.radians(4), math.radians(143)), False)  # 7
sketch10.addGeometry(Part.LineSegment(Vector(-231, -286, 0), Vector(-494, -116, 0)), False)  # 8
sketch10.addGeometry(Part.LineSegment(Vector(-494, -116, 0), Vector(175, -306, 0)), False)  # 9
sketch10.addConstraint(Sketcher.Constraint("Coincident", 3, 1, 4, 1))
sketch10.addConstraint(Sketcher.Constraint("Coincident", 4, 2, 5, 1))
sketch10.addConstraint(Sketcher.Constraint("Coincident", 5, 2, 3, 2))
sketch10.addConstraint(Sketcher.Constraint("Coincident", 6, 2, 7, 1))
sketch10.addConstraint(Sketcher.Constraint("Coincident", 7, 2, 8, 1))
sketch10.addConstraint(Sketcher.Constraint("Coincident", 8, 2, 9, 1))
sketch10.addConstraint(Sketcher.Constraint("Coincident", 9, 2, 6, 1))
sketch10.addConstraint(Sketcher.Constraint("Horizontal", 1))
sketch10.addConstraint(Sketcher.Constraint("Horizontal", 4))
sketch10.addConstraint(Sketcher.Constraint("Horizontal", 6))
sketch10.addConstraint(Sketcher.Constraint("Coincident", 7, 3, 3, 3))
sketch10.addConstraint(Sketcher.Constraint("Coincident", 0, 2, 3, 3))
sketch10.addConstraint(Sketcher.Constraint("Parallel", 0, 5))
sketch10.addConstraint(Sketcher.Constraint("Parallel", 5, 8))
sketch10.addConstraint(Sketcher.Constraint("Parallel", 2, 9))
sketch10.addConstraint(Sketcher.Constraint("Horizontal", 4, 2, 6, 2))
sketch10.addConstraint(Sketcher.Constraint("Radius", 3, Q("1.4 in")))
sketch10.addConstraint(Sketcher.Constraint("Radius", 7, Q("1.5 in")))
sketch10.addConstraint(Sketcher.Constraint("DistanceX", 1, 1, 1, 2, Q("15.5 in")))
sketch10.addConstraint(Sketcher.Constraint("Distance", 0, Q("14.5 in")))
sketch10.addConstraint(Sketcher.Constraint("DistanceY", 3, 3, 3, 1, Q("0.1 in")))
sketch10.addConstraint(Sketcher.Constraint("DistanceX", 4, 2, 4, 1, 34.717339))
sketch10.addConstraint(Sketcher.Constraint("DistanceY", 5, 2, -1, 1, 287.525701))
sketch10.addConstraint(Sketcher.Constraint("DistanceX", 5, 2, 3, 1, 63.841302))
sketch10.addConstraint(Sketcher.Constraint("DistanceX", 7, 2, 3, 3, 30.507999))
sketch10.addConstraint(Sketcher.Constraint("DistanceX", 2, 2, 8, 2, 15.594199))
sketch10.addConstraint(Sketcher.Constraint("DistanceX", 2, 2, -1, 1, 509.429622))
sketch10.setExpression("Constraints[19]", "Params.sketch10_radius")
sketch10.setExpression("Constraints[20]", "Params.sketch10_radius2")
sketch10.setExpression("Constraints[21]", "Params.sketch10_width")
sketch10.setExpression("Constraints[22]", "Params.sketch10_length")
sketch10.setExpression("Constraints[23]", "Params.sketch10_height")
pad9 = body9.newObject("PartDesign::Pad", "Pad008")
pad9.Profile = sketch10
pad9.setExpression("Length", "Params.pad9_length")
body10 = doc.addObject("PartDesign::Body", "Body009")

# Sketch on XZ plane
sketch11 = body10.newObject("Sketcher::SketchObject", "Sketch010")
sketch11.AttachmentSupport = (doc.getObject("XZ_Plane009"), [""])
sketch11.MapMode = "FlatFace"
sketch11.AttachmentOffset = App.Placement(Vector(0, 0, 1 * 25.4), App.Rotation())
add_polygon(sketch11, [(193, -309), (0, 0), (193, -703)])  # lines 0-2
sketch11.addGeometry(Part.LineSegment(Vector(191, -684, 0), Vector(7, -16, 0)), False)  # 3
sketch11.addGeometry(Part.LineSegment(Vector(7, -16, 0), Vector(171, -278, 0)), False)  # 4
sketch11.addGeometry(Part.ArcOfCircle(Part.Circle(Vector(193, -309, 0), Vector(0, 0, 1), 38), math.radians(126), math.radians(266)), False)  # 5
sketch11.addGeometry(Part.LineSegment(Vector(191, -347, 0), Vector(191, -684, 0)), False)  # 6
sketch11.addGeometry(Part.ArcOfCircle(Part.Circle(Vector(193, -309, 0), Vector(0, 0, 1), 36), math.radians(126), math.radians(266)), False)  # 7
sketch11.addGeometry(Part.LineSegment(Vector(172, -280, 0), Vector(191, -310, 0)), False)  # 8
sketch11.addGeometry(Part.LineSegment(Vector(191, -310, 0), Vector(191, -344, 0)), False)  # 9
sketch11.addConstraint(Sketcher.Constraint("Coincident", 3, 2, 4, 1))
sketch11.addConstraint(Sketcher.Constraint("Coincident", 4, 2, 5, 1))
sketch11.addConstraint(Sketcher.Constraint("Coincident", 5, 2, 6, 1))
sketch11.addConstraint(Sketcher.Constraint("Coincident", 6, 2, 3, 1))
sketch11.addConstraint(Sketcher.Constraint("Coincident", 7, 1, 8, 1))
sketch11.addConstraint(Sketcher.Constraint("Coincident", 8, 2, 9, 1))
sketch11.addConstraint(Sketcher.Constraint("Coincident", 9, 2, 7, 2))
sketch11.addConstraint(Sketcher.Constraint("Vertical", 2))
sketch11.addConstraint(Sketcher.Constraint("Vertical", 6))
sketch11.addConstraint(Sketcher.Constraint("Vertical", 9))
sketch11.addConstraint(Sketcher.Constraint("Coincident", 0, 2, -1, 1))
sketch11.addConstraint(Sketcher.Constraint("Coincident", 7, 3, 5, 3))
sketch11.addConstraint(Sketcher.Constraint("Coincident", 2, 2, 5, 3))
sketch11.addConstraint(Sketcher.Constraint("Parallel", 1, 3))
sketch11.addConstraint(Sketcher.Constraint("Parallel", 0, 4))
sketch11.addConstraint(Sketcher.Constraint("Parallel", 4, 8))
sketch11.addConstraint(Sketcher.Constraint("Vertical", 6, 2, 8, 2))
sketch11.addConstraint(Sketcher.Constraint("Radius", 5, Q("1.5 in")))
sketch11.addConstraint(Sketcher.Constraint("Radius", 7, Q("1.4 in")))
sketch11.addConstraint(Sketcher.Constraint("DistanceY", 2, 1, 2, 2, Q("15.5 in")))
sketch11.addConstraint(Sketcher.Constraint("DistanceX", 5, 2, 5, 3, Q("0.1 in")))
sketch11.addConstraint(Sketcher.Constraint("DistanceY", 6, 2, 6, 1, 336.869212))
sketch11.addConstraint(Sketcher.Constraint("DistanceY", 9, 2, 9, 1, 34.740287))
sketch11.addConstraint(Sketcher.Constraint("DistanceX", -1, 1, 3, 2, 7.05265))
sketch11.addConstraint(Sketcher.Constraint("DistanceY", 4, 2, -1, 1, 278.07864))
sketch11.addConstraint(Sketcher.Constraint("DistanceY", 5, 3, 3, 2, 292.895792))
sketch11.setExpression("Constraints[20]", "Params.sketch11_radius")
sketch11.setExpression("Constraints[21]", "Params.sketch11_radius2")
sketch11.setExpression("Constraints[22]", "Params.sketch11_height")
sketch11.setExpression("Constraints[23]", "Params.sketch11_width")
pad10 = body10.newObject("PartDesign::Pad", "Pad009")
pad10.Profile = sketch11
pad10.setExpression("Length", "Params.pad10_length")
body11 = doc.addObject("PartDesign::Body", "Body010")

# Sketch on XZ plane
sketch12 = body11.newObject("Sketcher::SketchObject", "Sketch011")
sketch12.AttachmentSupport = (doc.getObject("XZ_Plane010"), [""])
sketch12.MapMode = "FlatFace"
sketch12.AttachmentOffset = App.Placement(Vector(0, 0, 1 * 25.4), App.Rotation())
add_polygon(sketch12, [(309, 193), (0, 0), (-200, -309)])  # lines 0-2
sketch12.addGeometry(Part.ArcOfCircle(Part.Circle(Vector(0, 0, 0), Vector(0, 0, 1), 36), math.radians(-119), math.radians(28)), False)  # 3
sketch12.addGeometry(Part.LineSegment(Vector(-17, -31, 0), Vector(2, -2, 0)), False)  # 4
sketch12.addGeometry(Part.LineSegment(Vector(2, -2, 0), Vector(31, 17, 0)), False)  # 5
sketch12.addGeometry(Part.LineSegment(Vector(-186, -291, 0), Vector(-19, -33, 0)), False)  # 6
sketch12.addGeometry(Part.ArcOfCircle(Part.Circle(Vector(0, 0, 0), Vector(0, 0, 1), 38), math.radians(-119), math.radians(28)), False)  # 7
sketch12.addGeometry(Part.LineSegment(Vector(34, 18, 0), Vector(291, 179, 0)), False)  # 8
sketch12.addGeometry(Part.LineSegment(Vector(291, 179, 0), Vector(-186, -291, 0)), False)  # 9
sketch12.addConstraint(Sketcher.Constraint("Coincident", 3, 1, 4, 1))
sketch12.addConstraint(Sketcher.Constraint("Coincident", 4, 2, 5, 1))
sketch12.addConstraint(Sketcher.Constraint("Coincident", 5, 2, 3, 2))
sketch12.addConstraint(Sketcher.Constraint("Coincident", 6, 2, 7, 1))
sketch12.addConstraint(Sketcher.Constraint("Coincident", 7, 2, 8, 1))
sketch12.addConstraint(Sketcher.Constraint("Coincident", 8, 2, 9, 1))
sketch12.addConstraint(Sketcher.Constraint("Coincident", 9, 2, 6, 1))
sketch12.addConstraint(Sketcher.Constraint("Coincident", 3, 3, -1, 1))
sketch12.addConstraint(Sketcher.Constraint("Coincident", 7, 3, -1, 1))
sketch12.addConstraint(Sketcher.Constraint("Coincident", 0, 2, -1, 1))
sketch12.addConstraint(Sketcher.Constraint("Parallel", 1, 4))
sketch12.addConstraint(Sketcher.Constraint("Parallel", 0, 5))
sketch12.addConstraint(Sketcher.Constraint("Parallel", 4, 6))
sketch12.addConstraint(Sketcher.Constraint("Parallel", 5, 8))
sketch12.addConstraint(Sketcher.Constraint("Parallel", 2, 9))
sketch12.addConstraint(Sketcher.Constraint("Equal", 4, 5))
sketch12.addConstraint(Sketcher.Constraint("Radius", 3, Q("1.4 in")))
sketch12.addConstraint(Sketcher.Constraint("Radius", 7, Q("1.5 in")))
sketch12.addConstraint(Sketcher.Constraint("Distance", 1, Q("14.5 in")))
sketch12.addConstraint(Sketcher.Constraint("Distance", 6, 306.96548))
sketch12.addConstraint(Sketcher.Constraint("DistanceX", 6, 2, -1, 1, 18.561068))
sketch12.addConstraint(Sketcher.Constraint("DistanceY", -1, 1, 7, 2, 18.004382))
sketch12.addConstraint(Sketcher.Constraint("DistanceY", -1, 1, 8, 2, 178.847779))
sketch12.addConstraint(Sketcher.Constraint("DistanceY", 9, 2, -1, 1, 290.78275))
sketch12.addConstraint(Sketcher.Constraint("DistanceX", 1, 2, 2, 2, 509.429622))
sketch12.addConstraint(Sketcher.Constraint("DistanceY", 1, 2, 3, 1, 277.825289))
sketch12.setExpression("Constraints[19]", "Params.sketch12_radius")
sketch12.setExpression("Constraints[20]", "Params.sketch12_radius2")
sketch12.setExpression("Constraints[21]", "Params.sketch12_length")
pad11 = body11.newObject("PartDesign::Pad", "Pad010")
pad11.Profile = sketch12
pad11.setExpression("Length", "Params.pad11_length")

doc.recompute()
